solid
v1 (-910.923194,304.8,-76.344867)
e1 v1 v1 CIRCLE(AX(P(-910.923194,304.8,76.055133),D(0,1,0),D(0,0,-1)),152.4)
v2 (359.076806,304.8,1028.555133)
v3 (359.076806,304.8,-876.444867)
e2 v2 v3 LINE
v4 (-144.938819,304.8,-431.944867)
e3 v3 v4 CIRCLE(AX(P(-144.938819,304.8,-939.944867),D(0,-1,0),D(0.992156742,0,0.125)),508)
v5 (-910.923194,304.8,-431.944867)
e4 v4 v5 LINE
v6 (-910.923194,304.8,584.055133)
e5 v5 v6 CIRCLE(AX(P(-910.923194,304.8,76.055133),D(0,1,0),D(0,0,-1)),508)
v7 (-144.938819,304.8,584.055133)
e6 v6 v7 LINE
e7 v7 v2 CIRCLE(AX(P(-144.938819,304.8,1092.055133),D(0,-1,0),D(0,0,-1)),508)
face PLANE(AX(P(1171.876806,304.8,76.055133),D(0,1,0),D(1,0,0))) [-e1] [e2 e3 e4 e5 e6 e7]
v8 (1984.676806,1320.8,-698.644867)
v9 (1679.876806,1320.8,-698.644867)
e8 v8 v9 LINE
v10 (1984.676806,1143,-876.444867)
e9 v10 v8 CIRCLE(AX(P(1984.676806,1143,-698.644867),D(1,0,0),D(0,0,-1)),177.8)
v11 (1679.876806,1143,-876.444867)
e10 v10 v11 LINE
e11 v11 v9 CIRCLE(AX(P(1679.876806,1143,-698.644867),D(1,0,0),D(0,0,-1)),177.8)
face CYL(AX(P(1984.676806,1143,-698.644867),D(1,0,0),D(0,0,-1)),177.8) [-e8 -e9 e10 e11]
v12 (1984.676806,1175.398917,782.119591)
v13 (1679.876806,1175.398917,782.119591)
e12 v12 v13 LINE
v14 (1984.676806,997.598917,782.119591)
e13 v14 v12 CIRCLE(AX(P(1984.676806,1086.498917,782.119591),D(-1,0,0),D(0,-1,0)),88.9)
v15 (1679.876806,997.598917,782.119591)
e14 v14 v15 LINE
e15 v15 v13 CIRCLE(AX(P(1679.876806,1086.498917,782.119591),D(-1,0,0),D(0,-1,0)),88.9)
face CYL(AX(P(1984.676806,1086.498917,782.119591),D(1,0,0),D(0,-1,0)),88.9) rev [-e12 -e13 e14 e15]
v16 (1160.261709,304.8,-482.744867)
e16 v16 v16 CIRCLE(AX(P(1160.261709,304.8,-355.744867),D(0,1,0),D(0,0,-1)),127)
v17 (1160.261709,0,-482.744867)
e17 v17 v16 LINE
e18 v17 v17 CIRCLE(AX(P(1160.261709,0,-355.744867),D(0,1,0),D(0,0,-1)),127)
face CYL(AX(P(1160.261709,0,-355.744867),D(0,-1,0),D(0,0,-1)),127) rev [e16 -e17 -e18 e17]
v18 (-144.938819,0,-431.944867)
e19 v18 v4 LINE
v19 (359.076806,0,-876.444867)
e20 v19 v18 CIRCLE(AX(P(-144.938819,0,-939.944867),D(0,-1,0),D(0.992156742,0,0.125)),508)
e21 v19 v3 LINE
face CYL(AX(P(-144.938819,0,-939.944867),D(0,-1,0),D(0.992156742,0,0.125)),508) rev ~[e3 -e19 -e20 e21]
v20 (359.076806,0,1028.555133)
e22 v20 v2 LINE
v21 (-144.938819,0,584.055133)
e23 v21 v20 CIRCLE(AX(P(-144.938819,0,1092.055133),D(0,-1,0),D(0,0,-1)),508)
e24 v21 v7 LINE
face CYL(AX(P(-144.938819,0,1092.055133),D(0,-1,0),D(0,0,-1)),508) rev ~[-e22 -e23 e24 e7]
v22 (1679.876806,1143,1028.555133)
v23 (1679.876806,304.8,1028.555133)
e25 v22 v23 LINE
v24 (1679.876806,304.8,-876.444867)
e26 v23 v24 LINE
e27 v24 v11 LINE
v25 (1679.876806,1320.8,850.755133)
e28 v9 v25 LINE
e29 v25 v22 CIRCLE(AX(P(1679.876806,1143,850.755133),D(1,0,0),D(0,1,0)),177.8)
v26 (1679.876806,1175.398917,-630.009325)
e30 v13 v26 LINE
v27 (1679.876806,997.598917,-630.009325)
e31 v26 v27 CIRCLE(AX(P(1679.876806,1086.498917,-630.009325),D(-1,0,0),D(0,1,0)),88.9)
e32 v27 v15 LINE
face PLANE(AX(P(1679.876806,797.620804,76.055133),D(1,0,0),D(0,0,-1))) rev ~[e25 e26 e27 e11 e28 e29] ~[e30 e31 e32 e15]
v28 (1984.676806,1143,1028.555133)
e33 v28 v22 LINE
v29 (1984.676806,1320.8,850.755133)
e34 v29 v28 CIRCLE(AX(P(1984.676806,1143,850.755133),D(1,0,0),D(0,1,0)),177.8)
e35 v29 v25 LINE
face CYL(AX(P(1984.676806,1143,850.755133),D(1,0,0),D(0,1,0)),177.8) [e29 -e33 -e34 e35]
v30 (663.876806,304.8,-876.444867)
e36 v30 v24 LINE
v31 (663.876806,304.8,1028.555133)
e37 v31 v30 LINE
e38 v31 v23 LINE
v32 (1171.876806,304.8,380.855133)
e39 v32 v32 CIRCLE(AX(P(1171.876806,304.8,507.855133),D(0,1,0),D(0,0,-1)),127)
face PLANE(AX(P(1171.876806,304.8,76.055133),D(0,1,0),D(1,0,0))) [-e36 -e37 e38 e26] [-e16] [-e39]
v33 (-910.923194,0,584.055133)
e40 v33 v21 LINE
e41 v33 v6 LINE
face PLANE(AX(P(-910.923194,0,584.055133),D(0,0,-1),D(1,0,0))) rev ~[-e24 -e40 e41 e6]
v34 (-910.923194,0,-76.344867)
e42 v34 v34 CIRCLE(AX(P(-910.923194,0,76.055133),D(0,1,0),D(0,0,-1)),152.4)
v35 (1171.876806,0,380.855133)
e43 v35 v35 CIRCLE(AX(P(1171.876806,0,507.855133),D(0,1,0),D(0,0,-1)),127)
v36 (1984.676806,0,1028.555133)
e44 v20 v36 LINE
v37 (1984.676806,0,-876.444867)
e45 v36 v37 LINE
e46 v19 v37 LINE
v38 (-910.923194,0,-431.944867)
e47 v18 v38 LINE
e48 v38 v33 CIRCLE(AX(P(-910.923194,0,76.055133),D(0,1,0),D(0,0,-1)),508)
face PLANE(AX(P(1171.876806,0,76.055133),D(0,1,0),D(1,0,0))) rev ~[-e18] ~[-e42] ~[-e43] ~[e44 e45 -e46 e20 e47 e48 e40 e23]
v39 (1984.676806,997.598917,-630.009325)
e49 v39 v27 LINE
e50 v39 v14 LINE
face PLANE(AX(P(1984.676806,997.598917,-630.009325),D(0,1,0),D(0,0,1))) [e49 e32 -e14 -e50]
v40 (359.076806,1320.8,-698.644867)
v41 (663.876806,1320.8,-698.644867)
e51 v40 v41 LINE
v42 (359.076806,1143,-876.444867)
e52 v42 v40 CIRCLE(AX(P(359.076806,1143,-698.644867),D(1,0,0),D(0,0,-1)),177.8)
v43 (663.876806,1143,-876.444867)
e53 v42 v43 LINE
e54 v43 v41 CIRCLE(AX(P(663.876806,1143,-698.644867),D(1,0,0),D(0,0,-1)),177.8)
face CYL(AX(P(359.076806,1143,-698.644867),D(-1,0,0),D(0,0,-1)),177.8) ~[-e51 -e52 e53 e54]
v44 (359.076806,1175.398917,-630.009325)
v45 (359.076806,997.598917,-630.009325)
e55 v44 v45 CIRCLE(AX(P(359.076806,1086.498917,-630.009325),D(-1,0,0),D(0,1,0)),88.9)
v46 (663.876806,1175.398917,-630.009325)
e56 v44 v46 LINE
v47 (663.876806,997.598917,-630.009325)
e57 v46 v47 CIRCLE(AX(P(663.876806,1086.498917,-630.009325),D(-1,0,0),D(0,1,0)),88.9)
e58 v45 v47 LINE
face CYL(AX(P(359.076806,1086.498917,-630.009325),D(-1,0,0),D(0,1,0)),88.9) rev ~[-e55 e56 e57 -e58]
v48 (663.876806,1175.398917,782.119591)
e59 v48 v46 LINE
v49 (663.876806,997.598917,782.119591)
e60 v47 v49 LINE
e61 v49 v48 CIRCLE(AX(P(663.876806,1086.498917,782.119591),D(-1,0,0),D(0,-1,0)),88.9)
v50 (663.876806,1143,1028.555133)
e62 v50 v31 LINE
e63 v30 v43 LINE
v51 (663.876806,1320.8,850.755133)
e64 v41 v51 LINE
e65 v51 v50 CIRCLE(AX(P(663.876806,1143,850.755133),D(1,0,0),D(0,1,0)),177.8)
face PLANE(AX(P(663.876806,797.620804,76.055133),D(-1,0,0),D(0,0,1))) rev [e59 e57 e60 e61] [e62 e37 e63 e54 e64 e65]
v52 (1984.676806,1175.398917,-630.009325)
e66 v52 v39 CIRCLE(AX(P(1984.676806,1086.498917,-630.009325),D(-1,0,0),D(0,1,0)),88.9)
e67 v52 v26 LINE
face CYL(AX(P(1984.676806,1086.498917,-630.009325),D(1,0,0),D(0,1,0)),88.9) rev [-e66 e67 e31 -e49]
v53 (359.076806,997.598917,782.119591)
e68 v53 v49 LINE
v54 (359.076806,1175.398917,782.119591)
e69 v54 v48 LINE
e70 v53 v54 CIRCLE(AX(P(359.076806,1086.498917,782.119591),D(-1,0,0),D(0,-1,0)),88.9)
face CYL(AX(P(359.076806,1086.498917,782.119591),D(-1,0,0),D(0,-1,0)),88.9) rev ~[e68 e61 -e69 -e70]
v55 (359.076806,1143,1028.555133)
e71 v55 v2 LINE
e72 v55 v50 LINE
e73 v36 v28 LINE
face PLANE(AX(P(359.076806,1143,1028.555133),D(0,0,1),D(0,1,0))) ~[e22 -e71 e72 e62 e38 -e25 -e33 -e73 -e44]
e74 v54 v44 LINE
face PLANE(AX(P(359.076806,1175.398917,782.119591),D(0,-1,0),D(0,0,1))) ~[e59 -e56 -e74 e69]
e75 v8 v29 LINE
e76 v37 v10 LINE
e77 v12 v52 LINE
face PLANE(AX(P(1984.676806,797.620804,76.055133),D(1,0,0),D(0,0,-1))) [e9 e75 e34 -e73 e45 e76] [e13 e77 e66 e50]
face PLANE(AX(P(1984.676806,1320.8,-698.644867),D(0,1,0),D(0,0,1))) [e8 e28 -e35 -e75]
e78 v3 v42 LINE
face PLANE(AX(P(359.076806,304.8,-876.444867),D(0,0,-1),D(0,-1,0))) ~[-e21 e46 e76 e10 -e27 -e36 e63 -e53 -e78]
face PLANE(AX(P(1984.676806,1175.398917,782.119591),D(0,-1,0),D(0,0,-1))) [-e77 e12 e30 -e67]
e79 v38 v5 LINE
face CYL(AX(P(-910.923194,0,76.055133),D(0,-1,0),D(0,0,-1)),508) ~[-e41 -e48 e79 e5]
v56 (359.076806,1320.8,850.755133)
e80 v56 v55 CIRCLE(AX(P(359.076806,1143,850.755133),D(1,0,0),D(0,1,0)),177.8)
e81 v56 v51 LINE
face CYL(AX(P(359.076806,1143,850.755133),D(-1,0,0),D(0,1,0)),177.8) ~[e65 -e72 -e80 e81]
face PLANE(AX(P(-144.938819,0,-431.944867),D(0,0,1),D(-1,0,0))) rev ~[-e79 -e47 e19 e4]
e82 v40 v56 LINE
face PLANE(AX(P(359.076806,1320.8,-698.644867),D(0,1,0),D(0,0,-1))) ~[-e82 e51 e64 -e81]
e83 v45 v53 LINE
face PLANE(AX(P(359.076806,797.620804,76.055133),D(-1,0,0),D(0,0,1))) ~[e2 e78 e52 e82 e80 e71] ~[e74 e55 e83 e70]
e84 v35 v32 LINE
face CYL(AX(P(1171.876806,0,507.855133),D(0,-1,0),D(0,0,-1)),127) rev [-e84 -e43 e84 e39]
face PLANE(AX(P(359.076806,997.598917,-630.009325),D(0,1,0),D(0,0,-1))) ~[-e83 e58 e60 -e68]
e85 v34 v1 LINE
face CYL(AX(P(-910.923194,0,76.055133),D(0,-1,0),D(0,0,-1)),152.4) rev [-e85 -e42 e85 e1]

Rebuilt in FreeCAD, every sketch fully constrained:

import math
import FreeCAD as App
import Part
import Sketcher

V = App.Vector
Q = App.Units.Quantity

doc = App.newDocument("Part")
body = doc.addObject("PartDesign::Body", "Body")

# Sketch on XZ plane
sketch1 = doc.addObject("Sketcher::SketchObject", "Sketch")
body.addObject(sketch1)
sketch1.AttachmentSupport = (doc.XZ_Plane, [""])
sketch1.MapMode = "FlatFace"
sketch1.addGeometry([
    Part.LineSegment(V(-911, 584, 0), V(-145, 584, 0)),  # 0
    Part.ArcOfCircle(Part.Circle(V(-145, 1092, 0), V(0, 0, 1), 508), math.radians(-90), math.radians(-7)),  # 1
    Part.LineSegment(V(359, 1029, 0), V(1985, 1029, 0)),  # 2
    Part.LineSegment(V(1985, 1029, 0), V(1985, -876, 0)),  # 3
    Part.LineSegment(V(1985, -876, 0), V(359, -876, 0)),  # 4
    Part.ArcOfCircle(Part.Circle(V(-145, -940, 0), V(0, 0, 1), 508), math.radians(7), math.radians(90)),  # 5
    Part.LineSegment(V(-145, -432, 0), V(-911, -432, 0)),  # 6
    Part.ArcOfCircle(Part.Circle(V(-911, 76, 0), V(0, 0, 1), 508), math.radians(90), math.radians(270)),  # 7
    Part.Circle(V(-911, 76, 0), V(0, 0, 1), 152),  # 8
    Part.Circle(V(1160, -356, 0), V(0, 0, 1), 127),  # 9
    Part.Circle(V(1172, 508, 0), V(0, 0, 1), 127),  # 10
], False)
sketch1.addConstraint([
    Sketcher.Constraint("Tangent", 0, 2, 1, 1),
    Sketcher.Constraint("Coincident", 1, 2, 2, 1),
    Sketcher.Constraint("Coincident", 2, 2, 3, 1),
    Sketcher.Constraint("Coincident", 3, 2, 4, 1),
    Sketcher.Constraint("Coincident", 4, 2, 5, 1),
    Sketcher.Constraint("Tangent", 5, 2, 6, 1),
    Sketcher.Constraint("Tangent", 6, 2, 7, 2),
    Sketcher.Constraint("Tangent", 7, 1, 0, 1),
    Sketcher.Constraint("Horizontal", 0),
    Sketcher.Constraint("Horizontal", 2),
    Sketcher.Constraint("Vertical", 3),
    Sketcher.Constraint("Horizontal", 4),
    Sketcher.Constraint("Horizontal", 6),
    Sketcher.Constraint("Coincident", 8, 3, 7, 3),
    Sketcher.Constraint("Equal", 1, 5),
    Sketcher.Constraint("Equal", 5, 7),
    Sketcher.Constraint("Equal", 9, 10),
    Sketcher.Constraint("Vertical", 1, 3, 5, 3),
    Sketcher.Constraint("Vertical", 1, 2, 4, 2),
    Sketcher.Constraint("Diameter", 8, Q("12 in")),
    Sketcher.Constraint("Diameter", 9, Q("10 in")),
    Sketcher.Constraint("Radius", 1, Q("20 in")),
    Sketcher.Constraint("DistanceX", 2, 1, 2, 2, Q("64 in")),
    Sketcher.Constraint("DistanceY", 3, 2, 3, 1, Q("75 in")),
    Sketcher.Constraint("DistanceY", 5, 3, 9, 3, Q("23 in")),
    Sketcher.Constraint("DistanceY", 9, 3, 10, 3, Q("34 in")),
    Sketcher.Constraint("DistanceX", 7, 3, 10, 3, Q("82 in")),
    Sketcher.Constraint("DistanceX", 1, 2, 10, 3, Q("32 in")),
    Sketcher.Constraint("DistanceX", 1, 3, -1, 1, 144.938819),
    Sketcher.Constraint("DistanceX", -1, 1, 9, 3, 1160.261709),
    Sketcher.Constraint("DistanceY", -1, 1, 1, 3, 1092.055133),
])
pad1 = doc.addObject("PartDesign::Pad", "Pad")
body.addObject(pad1)
pad1.Profile = sketch1
pad1.Length = Q("12 in")
pad1.Reversed = True

# Sketch on YZ plane
sketch2 = doc.addObject("Sketcher::SketchObject", "Sketch001")
body.addObject(sketch2)
sketch2.AttachmentSupport = (doc.YZ_Plane, [""])
sketch2.MapMode = "FlatFace"
sketch2.AttachmentOffset = App.Placement(V(0, 0, 1984.676806), App.Rotation())
sketch2.addGeometry([
    Part.LineSegment(V(305, 1029, 0), V(305, -876, 0)),  # 0
    Part.LineSegment(V(305, -876, 0), V(1143, -876, 0)),  # 1
    Part.ArcOfCircle(Part.Circle(V(1143, -699, 0), V(0, 0, 1), 178), math.radians(-90), math.radians(0)),  # 2
    Part.LineSegment(V(1321, -699, 0), V(1321, 851, 0)),  # 3
    Part.ArcOfCircle(Part.Circle(V(1143, 851, 0), V(0, 0, 1), 178), math.radians(0), math.radians(90)),  # 4
    Part.LineSegment(V(1143, 1029, 0), V(305, 1029, 0)),  # 5
    Part.ArcOfCircle(Part.Circle(V(1086, 782, 0), V(0, 0, 1), 89), math.radians(0), math.radians(180)),  # 6
    Part.LineSegment(V(1175, 782, 0), V(1175, -630, 0)),  # 7
    Part.ArcOfCircle(Part.Circle(V(1086, -630, 0), V(0, 0, 1), 89), math.radians(180), math.radians(360)),  # 8
    Part.LineSegment(V(998, -630, 0), V(998, 782, 0)),  # 9
], False)
sketch2.addConstraint([
    Sketcher.Constraint("Coincident", 0, 2, 1, 1),
    Sketcher.Constraint("Tangent", 1, 2, 2, 1),
    Sketcher.Constraint("Tangent", 2, 2, 3, 1),
    Sketcher.Constraint("Tangent", 3, 2, 4, 1),
    Sketcher.Constraint("Tangent", 4, 2, 5, 1),
    Sketcher.Constraint("Coincident", 5, 2, 0, 1),
    Sketcher.Constraint("Tangent", 6, 1, 7, 1),
    Sketcher.Constraint("Tangent", 7, 2, 8, 2),
    Sketcher.Constraint("Tangent", 8, 1, 9, 1),
    Sketcher.Constraint("Tangent", 9, 2, 6, 2),
    Sketcher.Constraint("Vertical", 0),
    Sketcher.Constraint("Horizontal", 1),
    Sketcher.Constraint("Vertical", 3),
    Sketcher.Constraint("Horizontal", 5),
    Sketcher.Constraint("Vertical", 7),
    Sketcher.Constraint("Vertical", 9),
    Sketcher.Constraint("Equal", 2, 4),
    Sketcher.Constraint("Radius", 2, Q("7 in")),
    Sketcher.Constraint("Radius", 6, Q("3.5 in")),
    Sketcher.Constraint("DistanceX", 1, 1, 1, 2, Q("33 in")),
    Sketcher.Constraint("DistanceY", 0, 2, 0, 1, Q("75 in")),
    Sketcher.Constraint("DistanceX", -1, 1, 2, 3, Q("45 in")),
    Sketcher.Constraint("DistanceY", 7, 2, 7, 1, 1412.128916),
    Sketcher.Constraint("DistanceY", -1, 1, 6, 3, 782.119591),
    Sketcher.Constraint("DistanceY", 6, 3, 4, 3, 68.635542),
    Sketcher.Constraint("DistanceX", -1, 1, 6, 3, 1086.498917),
])
pad2 = doc.addObject("PartDesign::Pad", "Pad001")
body.addObject(pad2)
pad2.Profile = sketch2
pad2.Length = Q("12 in")
pad2.Reversed = True
doc.recompute()

datumplane = doc.addObject("PartDesign::Plane", "DatumPlane")
body.addObject(datumplane)
datumplane.AttachmentSupport = (doc.YZ_Plane, [""])
datumplane.MapMode = "FlatFace"
datumplane.AttachmentOffset = App.Placement(V(0, 0, 1171.876806), App.Rotation())
mirrored = doc.addObject("PartDesign::Mirrored", "Mirrored")
body.addObject(mirrored)
mirrored.Originals = [pad2]
mirrored.MirrorPlane = (datumplane, [""])
body.Tip = mirrored

doc.recompute()
